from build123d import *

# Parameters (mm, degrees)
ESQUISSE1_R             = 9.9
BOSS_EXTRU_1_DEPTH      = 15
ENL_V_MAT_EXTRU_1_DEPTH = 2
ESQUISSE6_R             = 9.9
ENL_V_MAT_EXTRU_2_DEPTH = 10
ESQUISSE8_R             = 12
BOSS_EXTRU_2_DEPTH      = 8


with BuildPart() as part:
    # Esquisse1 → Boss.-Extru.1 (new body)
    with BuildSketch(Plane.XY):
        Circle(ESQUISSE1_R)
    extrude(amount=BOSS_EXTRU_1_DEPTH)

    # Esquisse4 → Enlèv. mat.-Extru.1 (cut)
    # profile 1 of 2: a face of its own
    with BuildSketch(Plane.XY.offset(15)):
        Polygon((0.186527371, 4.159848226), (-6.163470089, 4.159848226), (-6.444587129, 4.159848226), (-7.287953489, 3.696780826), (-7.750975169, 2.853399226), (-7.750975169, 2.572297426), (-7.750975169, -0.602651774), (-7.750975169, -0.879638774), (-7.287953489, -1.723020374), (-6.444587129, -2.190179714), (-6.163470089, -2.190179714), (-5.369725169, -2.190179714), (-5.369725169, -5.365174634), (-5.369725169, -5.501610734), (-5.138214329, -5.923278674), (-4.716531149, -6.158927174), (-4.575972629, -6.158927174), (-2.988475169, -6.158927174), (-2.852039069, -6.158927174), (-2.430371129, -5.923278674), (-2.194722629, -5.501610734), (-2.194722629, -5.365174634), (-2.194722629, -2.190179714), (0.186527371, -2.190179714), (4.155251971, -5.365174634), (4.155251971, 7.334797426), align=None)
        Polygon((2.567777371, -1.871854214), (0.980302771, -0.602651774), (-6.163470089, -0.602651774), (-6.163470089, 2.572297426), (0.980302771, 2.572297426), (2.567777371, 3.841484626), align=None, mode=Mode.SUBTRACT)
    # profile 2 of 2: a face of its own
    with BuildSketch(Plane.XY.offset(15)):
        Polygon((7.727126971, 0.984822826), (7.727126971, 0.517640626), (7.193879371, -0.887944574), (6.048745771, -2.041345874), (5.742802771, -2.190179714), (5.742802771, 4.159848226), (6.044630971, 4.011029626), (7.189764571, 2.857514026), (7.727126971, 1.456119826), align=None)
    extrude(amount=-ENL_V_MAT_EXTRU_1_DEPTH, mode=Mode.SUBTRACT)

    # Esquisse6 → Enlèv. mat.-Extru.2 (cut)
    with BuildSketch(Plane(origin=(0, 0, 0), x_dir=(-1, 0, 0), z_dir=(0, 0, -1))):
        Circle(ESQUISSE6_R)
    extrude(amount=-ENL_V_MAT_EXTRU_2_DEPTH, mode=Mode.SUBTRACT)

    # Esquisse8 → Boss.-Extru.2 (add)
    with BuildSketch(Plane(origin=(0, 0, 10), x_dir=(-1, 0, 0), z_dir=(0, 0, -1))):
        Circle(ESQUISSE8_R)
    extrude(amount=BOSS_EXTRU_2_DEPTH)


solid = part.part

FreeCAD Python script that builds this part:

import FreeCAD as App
import Part
import Sketcher
from FreeCAD import Vector
Q = App.Units.Quantity

doc = App.newDocument("Part")
body = doc.addObject("PartDesign::Body", "Body")

# Sketch on XY plane
sketch1 = body.newObject("Sketcher::SketchObject", "Sketch")
sketch1.AttachmentSupport = (doc.getObject("XY_Plane"), [""])
sketch1.MapMode = "FlatFace"
sketch1.addGeometry(Part.Circle(Vector(0, 0, 0), Vector(0, 0, 1), 10), False)
sketch1.addConstraint(Sketcher.Constraint("Coincident", 0, 3, -1, 1))
sketch1.addConstraint(Sketcher.Constraint("Diameter", 0, Q("19.8 mm")))
pad1 = body.newObject("PartDesign::Pad", "Pad")
pad1.Profile = sketch1
pad1.Length = 15

# Sketch on XY plane
sketch2 = body.newObject("Sketcher::SketchObject", "Sketch001")
sketch2.AttachmentSupport = (doc.getObject("XY_Plane"), [""])
sketch2.MapMode = "FlatFace"
sketch2.AttachmentOffset = App.Placement(Vector(0, 0, 15), App.Rotation())
sketch2.addGeometry(Part.LineSegment(Vector(0.19, 4.16, 0), Vector(-6.44, 4.16, 0)), False)
sketch2.addGeometry(Part.LineSegment(Vector(-6.44, 4.16, 0), Vector(-7.29, 3.7, 0)), False)
sketch2.addGeometry(Part.LineSegment(Vector(-7.29, 3.7, 0), Vector(-7.75, 2.85, 0)), False)
sketch2.addGeometry(Part.LineSegment(Vector(-7.75, 2.85, 0), Vector(-7.75, -0.88, 0)), False)
sketch2.addGeometry(Part.LineSegment(Vector(-7.75, -0.88, 0), Vector(-7.29, -1.72, 0)), False)
sketch2.addGeometry(Part.LineSegment(Vector(-7.29, -1.72, 0), Vector(-6.44, -2.19, 0)), False)
sketch2.addGeometry(Part.LineSegment(Vector(-6.44, -2.19, 0), Vector(-5.37, -2.19, 0)), False)
sketch2.addGeometry(Part.LineSegment(Vector(-5.37, -2.19, 0), Vector(-5.37, -5.5, 0)), False)
sketch2.addGeometry(Part.LineSegment(Vector(-5.37, -5.5, 0), Vector(-5.14, -5.92, 0)), False)
sketch2.addGeometry(Part.LineSegment(Vector(-5.14, -5.92, 0), Vector(-4.72, -6.16, 0)), False)
sketch2.addGeometry(Part.LineSegment(Vector(-4.72, -6.16, 0), Vector(-2.85, -6.16, 0)), False)
sketch2.addGeometry(Part.LineSegment(Vector(-2.85, -6.16, 0), Vector(-2.43, -5.92, 0)), False)
sketch2.addGeometry(Part.LineSegment(Vector(-2.43, -5.92, 0), Vector(-2.19, -5.5, 0)), False)
sketch2.addGeometry(Part.LineSegment(Vector(-2.19, -5.5, 0), Vector(-2.19, -2.19, 0)), False)
sketch2.addGeometry(Part.LineSegment(Vector(-2.19, -2.19, 0), Vector(0.19, -2.19, 0)), False)
sketch2.addGeometry(Part.LineSegment(Vector(0.19, -2.19, 0), Vector(4.16, -5.37, 0)), False)
sketch2.addGeometry(Part.LineSegment(Vector(4.16, -5.37, 0), Vector(4.16, 7.33, 0)), False)
sketch2.addGeometry(Part.LineSegment(Vector(4.16, 7.33, 0), Vector(0.19, 4.16, 0)), False)
sketch2.addGeometry(Part.LineSegment(Vector(2.57, 3.84, 0), Vector(2.57, -1.87, 0)), False)
sketch2.addGeometry(Part.LineSegment(Vector(2.57, -1.87, 0), Vector(0.98, -0.6, 0)), False)
sketch2.addGeometry(Part.LineSegment(Vector(0.98, -0.6, 0), Vector(-6.16, -0.6, 0)), False)
sketch2.addGeometry(Part.LineSegment(Vector(-6.16, -0.6, 0), Vector(-6.16, 2.57, 0)), False)
sketch2.addGeometry(Part.LineSegment(Vector(-6.16, 2.57, 0), Vector(0.98, 2.57, 0)), False)
sketch2.addGeometry(Part.LineSegment(Vector(0.98, 2.57, 0), Vector(2.57, 3.84, 0)), False)
sketch2.addGeometry(Part.LineSegment(Vector(7.73, 0.52, 0), Vector(7.73, 1.46, 0)), False)
sketch2.addGeometry(Part.LineSegment(Vector(7.73, 1.46, 0), Vector(7.19, 2.86, 0)), False)
sketch2.addGeometry(Part.LineSegment(Vector(7.19, 2.86, 0), Vector(6.04, 4.01, 0)), False)
sketch2.addGeometry(Part.LineSegment(Vector(6.04, 4.01, 0), Vector(5.74, 4.16, 0)), False)
sketch2.addGeometry(Part.LineSegment(Vector(5.74, 4.16, 0), Vector(5.74, -2.19, 0)), False)
sketch2.addGeometry(Part.LineSegment(Vector(5.74, -2.19, 0), Vector(6.05, -2.04, 0)), False)
sketch2.addGeometry(Part.LineSegment(Vector(6.05, -2.04, 0), Vector(7.19, -0.89, 0)), False)
sketch2.addGeometry(Part.LineSegment(Vector(7.19, -0.89, 0), Vector(7.73, 0.52, 0)), False)
sketch2.addConstraint(Sketcher.Constraint("Coincident", 0, 2, 1, 1))
sketch2.addConstraint(Sketcher.Constraint("Coincident", 1, 2, 2, 1))
sketch2.addConstraint(Sketcher.Constraint("Coincident", 2, 2, 3, 1))
sketch2.addConstraint(Sketcher.Constraint("Coincident", 3, 2, 4, 1))
sketch2.addConstraint(Sketcher.Constraint("Coincident", 4, 2, 5, 1))
sketch2.addConstraint(Sketcher.Constraint("Coincident", 5, 2, 6, 1))
sketch2.addConstraint(Sketcher.Constraint("Coincident", 6, 2, 7, 1))
sketch2.addConstraint(Sketcher.Constraint("Coincident", 7, 2, 8, 1))
sketch2.addConstraint(Sketcher.Constraint("Coincident", 8, 2, 9, 1))
sketch2.addConstraint(Sketcher.Constraint("Coincident", 9, 2, 10, 1))
sketch2.addConstraint(Sketcher.Constraint("Coincident", 10, 2, 11, 1))
sketch2.addConstraint(Sketcher.Constraint("Coincident", 11, 2, 12, 1))
sketch2.addConstraint(Sketcher.Constraint("Coincident", 12, 2, 13, 1))
sketch2.addConstraint(Sketcher.Constraint("Coincident", 13, 2, 14, 1))
sketch2.addConstraint(Sketcher.Constraint("Coincident", 14, 2, 15, 1))
sketch2.addConstraint(Sketcher.Constraint("Coincident", 15, 2, 16, 1))
sketch2.addConstraint(Sketcher.Constraint("Coincident", 16, 2, 17, 1))
sketch2.addConstraint(Sketcher.Constraint("Coincident", 17, 2, 0, 1))
sketch2.addConstraint(Sketcher.Constraint("Coincident", 18, 2, 19, 1))
sketch2.addConstraint(Sketcher.Constraint("Coincident", 19, 2, 20, 1))
sketch2.addConstraint(Sketcher.Constraint("Coincident", 20, 2, 21, 1))
sketch2.addConstraint(Sketcher.Constraint("Coincident", 21, 2, 22, 1))
sketch2.addConstraint(Sketcher.Constraint("Coincident", 22, 2, 23, 1))
sketch2.addConstraint(Sketcher.Constraint("Coincident", 23, 2, 18, 1))
sketch2.addConstraint(Sketcher.Constraint("Coincident", 24, 2, 25, 1))
sketch2.addConstraint(Sketcher.Constraint("Coincident", 25, 2, 26, 1))
sketch2.addConstraint(Sketcher.Constraint("Coincident", 26, 2, 27, 1))
sketch2.addConstraint(Sketcher.Constraint("Coincident", 27, 2, 28, 1))
sketch2.addConstraint(Sketcher.Constraint("Coincident", 28, 2, 29, 1))
sketch2.addConstraint(Sketcher.Constraint("Coincident", 29, 2, 30, 1))
sketch2.addConstraint(Sketcher.Constraint("Coincident", 30, 2, 31, 1))
sketch2.addConstraint(Sketcher.Constraint("Coincident", 31, 2, 24, 1))
sketch2.addConstraint(Sketcher.Constraint("Horizontal", 0))
sketch2.addConstraint(Sketcher.Constraint("Vertical", 3))
sketch2.addConstraint(Sketcher.Constraint("Horizontal", 6))
sketch2.addConstraint(Sketcher.Constraint("Vertical", 7))
sketch2.addConstraint(Sketcher.Constraint("Horizontal", 10))
sketch2.addConstraint(Sketcher.Constraint("Vertical", 13))
sketch2.addConstraint(Sketcher.Constraint("Horizontal", 14))
sketch2.addConstraint(Sketcher.Constraint("Vertical", 16))
sketch2.addConstraint(Sketcher.Constraint("Vertical", 18))
sketch2.addConstraint(Sketcher.Constraint("Horizontal", 20))
sketch2.addConstraint(Sketcher.Constraint("Vertical", 21))
sketch2.addConstraint(Sketcher.Constraint("Horizontal", 22))
sketch2.addConstraint(Sketcher.Constraint("Vertical", 24))
sketch2.addConstraint(Sketcher.Constraint("Vertical", 28))
sketch2.addConstraint(Sketcher.Constraint("Horizontal", 8, 2, 11, 2))
sketch2.addConstraint(Sketcher.Constraint("Horizontal", 7, 2, 12, 2))
sketch2.addConstraint(Sketcher.Constraint("Horizontal", 6, 2, 13, 2))
sketch2.addConstraint(Sketcher.Constraint("Horizontal", 17, 2, 27, 2))
sketch2.addConstraint(Sketcher.Constraint("Horizontal", 14, 2, 28, 2))
sketch2.addConstraint(Sketcher.Constraint("Vertical", 1, 2, 4, 2))
sketch2.addConstraint(Sketcher.Constraint("Vertical", 0, 2, 5, 2))
sketch2.addConstraint(Sketcher.Constraint("Vertical", 14, 2, 17, 2))
sketch2.addConstraint(Sketcher.Constraint("Vertical", 19, 2, 22, 2))
sketch2.addConstraint(Sketcher.Constraint("Equal", 2, 4))
sketch2.addConstraint(Sketcher.Constraint("Equal", 11, 12))
sketch2.addConstraint(Sketcher.Constraint("Distance", 26, Q("1.625401 mm")))
sketch2.addConstraint(Sketcher.Constraint("DistanceX", 6, 1, 6, 2, Q("1.074862 mm")))
sketch2.addConstraint(Sketcher.Constraint("DistanceX", 14, 1, 14, 2, Q("2.38125 mm")))
sketch2.addConstraint(Sketcher.Constraint("DistanceY", 3, 2, 3, 1, Q("3.733038 mm")))
sketch2.addConstraint(Sketcher.Constraint("DistanceY", 7, 2, 7, 1, Q("3.311431 mm")))
sketch2.addConstraint(Sketcher.Constraint("DistanceY", 18, 2, 18, 1, Q("5.713339 mm")))
sketch2.addConstraint(Sketcher.Constraint("DistanceY", 21, 1, 21, 2, Q("3.174949 mm")))
sketch2.addConstraint(Sketcher.Constraint("DistanceY", 24, 1, 24, 2, Q("0.938479 mm")))
sketch2.addConstraint(Sketcher.Constraint("DistanceY", -1, 1, 2, 2, Q("2.853399 mm")))
sketch2.addConstraint(Sketcher.Constraint("DistanceY", 4, 2, 1, 2, Q("5.419801 mm")))
sketch2.addConstraint(Sketcher.Constraint("DistanceY", 8, 2, 6, 2, Q("3.733099 mm")))
sketch2.addConstraint(Sketcher.Constraint("DistanceX", 11, 2, 14, 2, Q("2.616899 mm")))
sketch2.addConstraint(Sketcher.Constraint("DistanceX", 13, 2, 18, 2, Q("4.7625 mm")))
sketch2.addConstraint(Sketcher.Constraint("DistanceY", 19, 2, 17, 2, Q("4.7625 mm")))
sketch2.addConstraint(Sketcher.Constraint("DistanceY", 21, 2, 2, 2, Q("0.281102 mm")))
sketch2.addConstraint(Sketcher.Constraint("DistanceY", 22, 2, 16, 2, Q("4.7625 mm")))
sketch2.addConstraint(Sketcher.Constraint("DistanceY", 28, 2, 24, 2, Q("3.6463 mm")))
sketch2.addConstraint(Sketcher.Constraint("DistanceX", 19, 2, 28, 2, Q("4.7625 mm")))
sketch2.addConstraint(Sketcher.Constraint("DistanceY", 29, 2, 30, 2, Q("1.153401 mm")))
sketch2.addConstraint(Sketcher.Constraint("Distance", 5, Q("0.964108 mm")))
sketch2.addConstraint(Sketcher.Constraint("Distance", 8, Q("0.481042 mm")))
sketch2.addConstraint(Sketcher.Constraint("Distance", 9, Q("0.48306 mm")))
sketch2.addConstraint(Sketcher.Constraint("Distance", 17, Q("5.082428 mm")))
sketch2.addConstraint(Sketcher.Constraint("Distance", 30, Q("1.62532 mm")))
sketch2.addConstraint(Sketcher.Constraint("DistanceX", 0, 2, 0, 1, Q("6.631115 mm")))
sketch2.addConstraint(Sketcher.Constraint("DistanceX", 10, 1, 10, 2, Q("1.864492 mm")))
sketch2.addConstraint(Sketcher.Constraint("DistanceX", 20, 2, 20, 1, Q("7.143773 mm")))
sketch2.addConstraint(Sketcher.Constraint("DistanceY", 16, 1, 16, 2, Q("12.699972 mm")))
sketch2.addConstraint(Sketcher.Constraint("DistanceY", 28, 2, 28, 1, Q("6.350028 mm")))
sketch2.addConstraint(Sketcher.Constraint("DistanceX", 9, 2, -1, 1, Q("4.716531 mm")))
sketch2.addConstraint(Sketcher.Constraint("DistanceX", 20, 2, -1, 1, Q("6.16347 mm")))
sketch2.addConstraint(Sketcher.Constraint("DistanceX", -1, 1, 26, 2, Q("6.044631 mm")))
sketch2.addConstraint(Sketcher.Constraint("DistanceY", -1, 1, 26, 2, Q("4.01103 mm")))
sketch2.addConstraint(Sketcher.Constraint("DistanceX", -1, 1, 30, 2, Q("7.193879 mm")))
sketch2.addConstraint(Sketcher.Constraint("DistanceX", 2, 2, 1, 2, Q("0.463022 mm")))
sketch2.addConstraint(Sketcher.Constraint("DistanceY", 15, 2, 18, 2, Q("3.49332 mm")))
sketch2.addConstraint(Sketcher.Constraint("DistanceX", 23, 2, 24, 2, Q("5.15935 mm")))
sketch2.addConstraint(Sketcher.Constraint("DistanceY", 25, 2, 23, 2, Q("0.983971 mm")))
sketch2.addConstraint(Sketcher.Constraint("DistanceY", 29, 2, 18, 2, Q("0.169492 mm")))
pocket1 = body.newObject("PartDesign::Pocket", "Pocket")
pocket1.Profile = sketch2
pocket1.Length = 2

# Sketch on XY plane
sketch3 = body.newObject("Sketcher::SketchObject", "Sketch002")
sketch3.AttachmentSupport = (doc.getObject("XY_Plane"), [""])
sketch3.MapMode = "FlatFace"
sketch3.addGeometry(Part.Circle(Vector(0, 0, 0), Vector(0, 0, 1), 10), False)
sketch3.addConstraint(Sketcher.Constraint("Coincident", 0, 3, -1, 1))
sketch3.addConstraint(Sketcher.Constraint("Diameter", 0, Q("19.8 mm")))
pocket2 = body.newObject("PartDesign::Pocket", "Pocket001")
pocket2.Profile = sketch3
pocket2.Length = 10
pocket2.Reversed = True

# Sketch on XY plane
sketch4 = body.newObject("Sketcher::SketchObject", "Sketch003")
sketch4.AttachmentSupport = (doc.getObject("XY_Plane"), [""])
sketch4.MapMode = "FlatFace"
sketch4.AttachmentOffset = App.Placement(Vector(0, 0, 10), App.Rotation())
sketch4.addGeometry(Part.Circle(Vector(0, 0, 0), Vector(0, 0, 1), 12), False)
sketch4.addConstraint(Sketcher.Constraint("Coincident", 0, 3, -1, 1))
sketch4.addConstraint(Sketcher.Constraint("Diameter", 0, Q("24 mm")))
pad2 = body.newObject("PartDesign::Pad", "Pad001")
pad2.Profile = sketch4
pad2.Length = 8
pad2.Reversed = True

doc.recompute()
